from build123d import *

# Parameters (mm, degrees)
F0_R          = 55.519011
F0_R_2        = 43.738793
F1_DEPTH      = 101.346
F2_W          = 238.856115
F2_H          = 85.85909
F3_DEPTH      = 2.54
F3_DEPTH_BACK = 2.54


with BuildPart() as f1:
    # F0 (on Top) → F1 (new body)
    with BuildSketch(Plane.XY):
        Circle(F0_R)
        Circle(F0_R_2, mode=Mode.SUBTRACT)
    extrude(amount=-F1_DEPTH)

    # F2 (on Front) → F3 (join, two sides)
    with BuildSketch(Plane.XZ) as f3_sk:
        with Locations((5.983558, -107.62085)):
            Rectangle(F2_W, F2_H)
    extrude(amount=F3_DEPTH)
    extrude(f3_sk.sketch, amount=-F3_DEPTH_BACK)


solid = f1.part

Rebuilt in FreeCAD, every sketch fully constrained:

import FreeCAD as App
import Part
import Sketcher
Q = App.Units.Quantity


def add_polygon(sketch, points):
    """Adds a closed chain of lines whose ends are joined by coincident constraints."""
    first, n = sketch.GeometryCount, len(points)
    for a, b in zip(points, points[1:] + points[:1]):
        sketch.addGeometry(Part.LineSegment(App.Vector(*a, 0), App.Vector(*b, 0)), False)
    for i in range(n):
        sketch.addConstraint(Sketcher.Constraint("Coincident", first + i, 2, first + (i + 1) % n, 1))

doc = App.newDocument("Part")
body = doc.addObject("PartDesign::Body", "Body")

sketch1 = body.newObject("Sketcher::SketchObject", "Sketch")
sketch1.AttachmentSupport = (doc.getObject("XY_Plane"), [""])
sketch1.MapMode = "FlatFace"
sketch1.addGeometry(Part.Circle(App.Vector(0, 0, 0), App.Vector(0, 0, 1), 55.519011), False)
sketch1.addGeometry(Part.Circle(App.Vector(0, 0, 0), App.Vector(0, 0, 1), 43.738793), False)
sketch1.addConstraint(Sketcher.Constraint("Coincident", 0, 3, -1, 1))
sketch1.addConstraint(Sketcher.Constraint("Coincident", 1, 3, -1, 1))
sketch1.addConstraint(Sketcher.Constraint("Diameter", 0, Q("111.038022 mm")))
sketch1.addConstraint(Sketcher.Constraint("Diameter", 1, Q("87.477586 mm")))
pad1 = body.newObject("PartDesign::Pad", "Pad")
pad1.Profile = sketch1
pad1.Length = Q("3.99 in")
pad1.Reversed = True

sketch2 = body.newObject("Sketcher::SketchObject", "Sketch001")
sketch2.AttachmentSupport = (doc.getObject("XZ_Plane"), [""])
sketch2.MapMode = "FlatFace"
add_polygon(sketch2, [(-113.4445, -64.691305), (-113.4445, -150.550395), (125.411615, -150.550395), (125.411615, -64.691305)])
sketch2.addConstraint(Sketcher.Constraint("Vertical", 0))
sketch2.addConstraint(Sketcher.Constraint("Horizontal", 1))
sketch2.addConstraint(Sketcher.Constraint("Vertical", 2))
sketch2.addConstraint(Sketcher.Constraint("Horizontal", 3))
sketch2.addConstraint(Sketcher.Constraint("DistanceY", 0, 2, 0, 1, Q("85.85909 mm")))
sketch2.addConstraint(Sketcher.Constraint("DistanceX", 0, 2, -1, 1, Q("113.4445 mm")))
sketch2.addConstraint(Sketcher.Constraint("DistanceX", 1, 1, 1, 2, Q("238.856115 mm")))
sketch2.addConstraint(Sketcher.Constraint("DistanceY", 0, 2, -1, 1, Q("150.550395 mm")))
pad2 = body.newObject("PartDesign::Pad", "Pad001")
pad2.Profile = sketch2
pad2.Type = "TwoLengths"
pad2.Length = Q("0.1 in")
pad2.Length2 = Q("0.1 in")

doc.recompute()
